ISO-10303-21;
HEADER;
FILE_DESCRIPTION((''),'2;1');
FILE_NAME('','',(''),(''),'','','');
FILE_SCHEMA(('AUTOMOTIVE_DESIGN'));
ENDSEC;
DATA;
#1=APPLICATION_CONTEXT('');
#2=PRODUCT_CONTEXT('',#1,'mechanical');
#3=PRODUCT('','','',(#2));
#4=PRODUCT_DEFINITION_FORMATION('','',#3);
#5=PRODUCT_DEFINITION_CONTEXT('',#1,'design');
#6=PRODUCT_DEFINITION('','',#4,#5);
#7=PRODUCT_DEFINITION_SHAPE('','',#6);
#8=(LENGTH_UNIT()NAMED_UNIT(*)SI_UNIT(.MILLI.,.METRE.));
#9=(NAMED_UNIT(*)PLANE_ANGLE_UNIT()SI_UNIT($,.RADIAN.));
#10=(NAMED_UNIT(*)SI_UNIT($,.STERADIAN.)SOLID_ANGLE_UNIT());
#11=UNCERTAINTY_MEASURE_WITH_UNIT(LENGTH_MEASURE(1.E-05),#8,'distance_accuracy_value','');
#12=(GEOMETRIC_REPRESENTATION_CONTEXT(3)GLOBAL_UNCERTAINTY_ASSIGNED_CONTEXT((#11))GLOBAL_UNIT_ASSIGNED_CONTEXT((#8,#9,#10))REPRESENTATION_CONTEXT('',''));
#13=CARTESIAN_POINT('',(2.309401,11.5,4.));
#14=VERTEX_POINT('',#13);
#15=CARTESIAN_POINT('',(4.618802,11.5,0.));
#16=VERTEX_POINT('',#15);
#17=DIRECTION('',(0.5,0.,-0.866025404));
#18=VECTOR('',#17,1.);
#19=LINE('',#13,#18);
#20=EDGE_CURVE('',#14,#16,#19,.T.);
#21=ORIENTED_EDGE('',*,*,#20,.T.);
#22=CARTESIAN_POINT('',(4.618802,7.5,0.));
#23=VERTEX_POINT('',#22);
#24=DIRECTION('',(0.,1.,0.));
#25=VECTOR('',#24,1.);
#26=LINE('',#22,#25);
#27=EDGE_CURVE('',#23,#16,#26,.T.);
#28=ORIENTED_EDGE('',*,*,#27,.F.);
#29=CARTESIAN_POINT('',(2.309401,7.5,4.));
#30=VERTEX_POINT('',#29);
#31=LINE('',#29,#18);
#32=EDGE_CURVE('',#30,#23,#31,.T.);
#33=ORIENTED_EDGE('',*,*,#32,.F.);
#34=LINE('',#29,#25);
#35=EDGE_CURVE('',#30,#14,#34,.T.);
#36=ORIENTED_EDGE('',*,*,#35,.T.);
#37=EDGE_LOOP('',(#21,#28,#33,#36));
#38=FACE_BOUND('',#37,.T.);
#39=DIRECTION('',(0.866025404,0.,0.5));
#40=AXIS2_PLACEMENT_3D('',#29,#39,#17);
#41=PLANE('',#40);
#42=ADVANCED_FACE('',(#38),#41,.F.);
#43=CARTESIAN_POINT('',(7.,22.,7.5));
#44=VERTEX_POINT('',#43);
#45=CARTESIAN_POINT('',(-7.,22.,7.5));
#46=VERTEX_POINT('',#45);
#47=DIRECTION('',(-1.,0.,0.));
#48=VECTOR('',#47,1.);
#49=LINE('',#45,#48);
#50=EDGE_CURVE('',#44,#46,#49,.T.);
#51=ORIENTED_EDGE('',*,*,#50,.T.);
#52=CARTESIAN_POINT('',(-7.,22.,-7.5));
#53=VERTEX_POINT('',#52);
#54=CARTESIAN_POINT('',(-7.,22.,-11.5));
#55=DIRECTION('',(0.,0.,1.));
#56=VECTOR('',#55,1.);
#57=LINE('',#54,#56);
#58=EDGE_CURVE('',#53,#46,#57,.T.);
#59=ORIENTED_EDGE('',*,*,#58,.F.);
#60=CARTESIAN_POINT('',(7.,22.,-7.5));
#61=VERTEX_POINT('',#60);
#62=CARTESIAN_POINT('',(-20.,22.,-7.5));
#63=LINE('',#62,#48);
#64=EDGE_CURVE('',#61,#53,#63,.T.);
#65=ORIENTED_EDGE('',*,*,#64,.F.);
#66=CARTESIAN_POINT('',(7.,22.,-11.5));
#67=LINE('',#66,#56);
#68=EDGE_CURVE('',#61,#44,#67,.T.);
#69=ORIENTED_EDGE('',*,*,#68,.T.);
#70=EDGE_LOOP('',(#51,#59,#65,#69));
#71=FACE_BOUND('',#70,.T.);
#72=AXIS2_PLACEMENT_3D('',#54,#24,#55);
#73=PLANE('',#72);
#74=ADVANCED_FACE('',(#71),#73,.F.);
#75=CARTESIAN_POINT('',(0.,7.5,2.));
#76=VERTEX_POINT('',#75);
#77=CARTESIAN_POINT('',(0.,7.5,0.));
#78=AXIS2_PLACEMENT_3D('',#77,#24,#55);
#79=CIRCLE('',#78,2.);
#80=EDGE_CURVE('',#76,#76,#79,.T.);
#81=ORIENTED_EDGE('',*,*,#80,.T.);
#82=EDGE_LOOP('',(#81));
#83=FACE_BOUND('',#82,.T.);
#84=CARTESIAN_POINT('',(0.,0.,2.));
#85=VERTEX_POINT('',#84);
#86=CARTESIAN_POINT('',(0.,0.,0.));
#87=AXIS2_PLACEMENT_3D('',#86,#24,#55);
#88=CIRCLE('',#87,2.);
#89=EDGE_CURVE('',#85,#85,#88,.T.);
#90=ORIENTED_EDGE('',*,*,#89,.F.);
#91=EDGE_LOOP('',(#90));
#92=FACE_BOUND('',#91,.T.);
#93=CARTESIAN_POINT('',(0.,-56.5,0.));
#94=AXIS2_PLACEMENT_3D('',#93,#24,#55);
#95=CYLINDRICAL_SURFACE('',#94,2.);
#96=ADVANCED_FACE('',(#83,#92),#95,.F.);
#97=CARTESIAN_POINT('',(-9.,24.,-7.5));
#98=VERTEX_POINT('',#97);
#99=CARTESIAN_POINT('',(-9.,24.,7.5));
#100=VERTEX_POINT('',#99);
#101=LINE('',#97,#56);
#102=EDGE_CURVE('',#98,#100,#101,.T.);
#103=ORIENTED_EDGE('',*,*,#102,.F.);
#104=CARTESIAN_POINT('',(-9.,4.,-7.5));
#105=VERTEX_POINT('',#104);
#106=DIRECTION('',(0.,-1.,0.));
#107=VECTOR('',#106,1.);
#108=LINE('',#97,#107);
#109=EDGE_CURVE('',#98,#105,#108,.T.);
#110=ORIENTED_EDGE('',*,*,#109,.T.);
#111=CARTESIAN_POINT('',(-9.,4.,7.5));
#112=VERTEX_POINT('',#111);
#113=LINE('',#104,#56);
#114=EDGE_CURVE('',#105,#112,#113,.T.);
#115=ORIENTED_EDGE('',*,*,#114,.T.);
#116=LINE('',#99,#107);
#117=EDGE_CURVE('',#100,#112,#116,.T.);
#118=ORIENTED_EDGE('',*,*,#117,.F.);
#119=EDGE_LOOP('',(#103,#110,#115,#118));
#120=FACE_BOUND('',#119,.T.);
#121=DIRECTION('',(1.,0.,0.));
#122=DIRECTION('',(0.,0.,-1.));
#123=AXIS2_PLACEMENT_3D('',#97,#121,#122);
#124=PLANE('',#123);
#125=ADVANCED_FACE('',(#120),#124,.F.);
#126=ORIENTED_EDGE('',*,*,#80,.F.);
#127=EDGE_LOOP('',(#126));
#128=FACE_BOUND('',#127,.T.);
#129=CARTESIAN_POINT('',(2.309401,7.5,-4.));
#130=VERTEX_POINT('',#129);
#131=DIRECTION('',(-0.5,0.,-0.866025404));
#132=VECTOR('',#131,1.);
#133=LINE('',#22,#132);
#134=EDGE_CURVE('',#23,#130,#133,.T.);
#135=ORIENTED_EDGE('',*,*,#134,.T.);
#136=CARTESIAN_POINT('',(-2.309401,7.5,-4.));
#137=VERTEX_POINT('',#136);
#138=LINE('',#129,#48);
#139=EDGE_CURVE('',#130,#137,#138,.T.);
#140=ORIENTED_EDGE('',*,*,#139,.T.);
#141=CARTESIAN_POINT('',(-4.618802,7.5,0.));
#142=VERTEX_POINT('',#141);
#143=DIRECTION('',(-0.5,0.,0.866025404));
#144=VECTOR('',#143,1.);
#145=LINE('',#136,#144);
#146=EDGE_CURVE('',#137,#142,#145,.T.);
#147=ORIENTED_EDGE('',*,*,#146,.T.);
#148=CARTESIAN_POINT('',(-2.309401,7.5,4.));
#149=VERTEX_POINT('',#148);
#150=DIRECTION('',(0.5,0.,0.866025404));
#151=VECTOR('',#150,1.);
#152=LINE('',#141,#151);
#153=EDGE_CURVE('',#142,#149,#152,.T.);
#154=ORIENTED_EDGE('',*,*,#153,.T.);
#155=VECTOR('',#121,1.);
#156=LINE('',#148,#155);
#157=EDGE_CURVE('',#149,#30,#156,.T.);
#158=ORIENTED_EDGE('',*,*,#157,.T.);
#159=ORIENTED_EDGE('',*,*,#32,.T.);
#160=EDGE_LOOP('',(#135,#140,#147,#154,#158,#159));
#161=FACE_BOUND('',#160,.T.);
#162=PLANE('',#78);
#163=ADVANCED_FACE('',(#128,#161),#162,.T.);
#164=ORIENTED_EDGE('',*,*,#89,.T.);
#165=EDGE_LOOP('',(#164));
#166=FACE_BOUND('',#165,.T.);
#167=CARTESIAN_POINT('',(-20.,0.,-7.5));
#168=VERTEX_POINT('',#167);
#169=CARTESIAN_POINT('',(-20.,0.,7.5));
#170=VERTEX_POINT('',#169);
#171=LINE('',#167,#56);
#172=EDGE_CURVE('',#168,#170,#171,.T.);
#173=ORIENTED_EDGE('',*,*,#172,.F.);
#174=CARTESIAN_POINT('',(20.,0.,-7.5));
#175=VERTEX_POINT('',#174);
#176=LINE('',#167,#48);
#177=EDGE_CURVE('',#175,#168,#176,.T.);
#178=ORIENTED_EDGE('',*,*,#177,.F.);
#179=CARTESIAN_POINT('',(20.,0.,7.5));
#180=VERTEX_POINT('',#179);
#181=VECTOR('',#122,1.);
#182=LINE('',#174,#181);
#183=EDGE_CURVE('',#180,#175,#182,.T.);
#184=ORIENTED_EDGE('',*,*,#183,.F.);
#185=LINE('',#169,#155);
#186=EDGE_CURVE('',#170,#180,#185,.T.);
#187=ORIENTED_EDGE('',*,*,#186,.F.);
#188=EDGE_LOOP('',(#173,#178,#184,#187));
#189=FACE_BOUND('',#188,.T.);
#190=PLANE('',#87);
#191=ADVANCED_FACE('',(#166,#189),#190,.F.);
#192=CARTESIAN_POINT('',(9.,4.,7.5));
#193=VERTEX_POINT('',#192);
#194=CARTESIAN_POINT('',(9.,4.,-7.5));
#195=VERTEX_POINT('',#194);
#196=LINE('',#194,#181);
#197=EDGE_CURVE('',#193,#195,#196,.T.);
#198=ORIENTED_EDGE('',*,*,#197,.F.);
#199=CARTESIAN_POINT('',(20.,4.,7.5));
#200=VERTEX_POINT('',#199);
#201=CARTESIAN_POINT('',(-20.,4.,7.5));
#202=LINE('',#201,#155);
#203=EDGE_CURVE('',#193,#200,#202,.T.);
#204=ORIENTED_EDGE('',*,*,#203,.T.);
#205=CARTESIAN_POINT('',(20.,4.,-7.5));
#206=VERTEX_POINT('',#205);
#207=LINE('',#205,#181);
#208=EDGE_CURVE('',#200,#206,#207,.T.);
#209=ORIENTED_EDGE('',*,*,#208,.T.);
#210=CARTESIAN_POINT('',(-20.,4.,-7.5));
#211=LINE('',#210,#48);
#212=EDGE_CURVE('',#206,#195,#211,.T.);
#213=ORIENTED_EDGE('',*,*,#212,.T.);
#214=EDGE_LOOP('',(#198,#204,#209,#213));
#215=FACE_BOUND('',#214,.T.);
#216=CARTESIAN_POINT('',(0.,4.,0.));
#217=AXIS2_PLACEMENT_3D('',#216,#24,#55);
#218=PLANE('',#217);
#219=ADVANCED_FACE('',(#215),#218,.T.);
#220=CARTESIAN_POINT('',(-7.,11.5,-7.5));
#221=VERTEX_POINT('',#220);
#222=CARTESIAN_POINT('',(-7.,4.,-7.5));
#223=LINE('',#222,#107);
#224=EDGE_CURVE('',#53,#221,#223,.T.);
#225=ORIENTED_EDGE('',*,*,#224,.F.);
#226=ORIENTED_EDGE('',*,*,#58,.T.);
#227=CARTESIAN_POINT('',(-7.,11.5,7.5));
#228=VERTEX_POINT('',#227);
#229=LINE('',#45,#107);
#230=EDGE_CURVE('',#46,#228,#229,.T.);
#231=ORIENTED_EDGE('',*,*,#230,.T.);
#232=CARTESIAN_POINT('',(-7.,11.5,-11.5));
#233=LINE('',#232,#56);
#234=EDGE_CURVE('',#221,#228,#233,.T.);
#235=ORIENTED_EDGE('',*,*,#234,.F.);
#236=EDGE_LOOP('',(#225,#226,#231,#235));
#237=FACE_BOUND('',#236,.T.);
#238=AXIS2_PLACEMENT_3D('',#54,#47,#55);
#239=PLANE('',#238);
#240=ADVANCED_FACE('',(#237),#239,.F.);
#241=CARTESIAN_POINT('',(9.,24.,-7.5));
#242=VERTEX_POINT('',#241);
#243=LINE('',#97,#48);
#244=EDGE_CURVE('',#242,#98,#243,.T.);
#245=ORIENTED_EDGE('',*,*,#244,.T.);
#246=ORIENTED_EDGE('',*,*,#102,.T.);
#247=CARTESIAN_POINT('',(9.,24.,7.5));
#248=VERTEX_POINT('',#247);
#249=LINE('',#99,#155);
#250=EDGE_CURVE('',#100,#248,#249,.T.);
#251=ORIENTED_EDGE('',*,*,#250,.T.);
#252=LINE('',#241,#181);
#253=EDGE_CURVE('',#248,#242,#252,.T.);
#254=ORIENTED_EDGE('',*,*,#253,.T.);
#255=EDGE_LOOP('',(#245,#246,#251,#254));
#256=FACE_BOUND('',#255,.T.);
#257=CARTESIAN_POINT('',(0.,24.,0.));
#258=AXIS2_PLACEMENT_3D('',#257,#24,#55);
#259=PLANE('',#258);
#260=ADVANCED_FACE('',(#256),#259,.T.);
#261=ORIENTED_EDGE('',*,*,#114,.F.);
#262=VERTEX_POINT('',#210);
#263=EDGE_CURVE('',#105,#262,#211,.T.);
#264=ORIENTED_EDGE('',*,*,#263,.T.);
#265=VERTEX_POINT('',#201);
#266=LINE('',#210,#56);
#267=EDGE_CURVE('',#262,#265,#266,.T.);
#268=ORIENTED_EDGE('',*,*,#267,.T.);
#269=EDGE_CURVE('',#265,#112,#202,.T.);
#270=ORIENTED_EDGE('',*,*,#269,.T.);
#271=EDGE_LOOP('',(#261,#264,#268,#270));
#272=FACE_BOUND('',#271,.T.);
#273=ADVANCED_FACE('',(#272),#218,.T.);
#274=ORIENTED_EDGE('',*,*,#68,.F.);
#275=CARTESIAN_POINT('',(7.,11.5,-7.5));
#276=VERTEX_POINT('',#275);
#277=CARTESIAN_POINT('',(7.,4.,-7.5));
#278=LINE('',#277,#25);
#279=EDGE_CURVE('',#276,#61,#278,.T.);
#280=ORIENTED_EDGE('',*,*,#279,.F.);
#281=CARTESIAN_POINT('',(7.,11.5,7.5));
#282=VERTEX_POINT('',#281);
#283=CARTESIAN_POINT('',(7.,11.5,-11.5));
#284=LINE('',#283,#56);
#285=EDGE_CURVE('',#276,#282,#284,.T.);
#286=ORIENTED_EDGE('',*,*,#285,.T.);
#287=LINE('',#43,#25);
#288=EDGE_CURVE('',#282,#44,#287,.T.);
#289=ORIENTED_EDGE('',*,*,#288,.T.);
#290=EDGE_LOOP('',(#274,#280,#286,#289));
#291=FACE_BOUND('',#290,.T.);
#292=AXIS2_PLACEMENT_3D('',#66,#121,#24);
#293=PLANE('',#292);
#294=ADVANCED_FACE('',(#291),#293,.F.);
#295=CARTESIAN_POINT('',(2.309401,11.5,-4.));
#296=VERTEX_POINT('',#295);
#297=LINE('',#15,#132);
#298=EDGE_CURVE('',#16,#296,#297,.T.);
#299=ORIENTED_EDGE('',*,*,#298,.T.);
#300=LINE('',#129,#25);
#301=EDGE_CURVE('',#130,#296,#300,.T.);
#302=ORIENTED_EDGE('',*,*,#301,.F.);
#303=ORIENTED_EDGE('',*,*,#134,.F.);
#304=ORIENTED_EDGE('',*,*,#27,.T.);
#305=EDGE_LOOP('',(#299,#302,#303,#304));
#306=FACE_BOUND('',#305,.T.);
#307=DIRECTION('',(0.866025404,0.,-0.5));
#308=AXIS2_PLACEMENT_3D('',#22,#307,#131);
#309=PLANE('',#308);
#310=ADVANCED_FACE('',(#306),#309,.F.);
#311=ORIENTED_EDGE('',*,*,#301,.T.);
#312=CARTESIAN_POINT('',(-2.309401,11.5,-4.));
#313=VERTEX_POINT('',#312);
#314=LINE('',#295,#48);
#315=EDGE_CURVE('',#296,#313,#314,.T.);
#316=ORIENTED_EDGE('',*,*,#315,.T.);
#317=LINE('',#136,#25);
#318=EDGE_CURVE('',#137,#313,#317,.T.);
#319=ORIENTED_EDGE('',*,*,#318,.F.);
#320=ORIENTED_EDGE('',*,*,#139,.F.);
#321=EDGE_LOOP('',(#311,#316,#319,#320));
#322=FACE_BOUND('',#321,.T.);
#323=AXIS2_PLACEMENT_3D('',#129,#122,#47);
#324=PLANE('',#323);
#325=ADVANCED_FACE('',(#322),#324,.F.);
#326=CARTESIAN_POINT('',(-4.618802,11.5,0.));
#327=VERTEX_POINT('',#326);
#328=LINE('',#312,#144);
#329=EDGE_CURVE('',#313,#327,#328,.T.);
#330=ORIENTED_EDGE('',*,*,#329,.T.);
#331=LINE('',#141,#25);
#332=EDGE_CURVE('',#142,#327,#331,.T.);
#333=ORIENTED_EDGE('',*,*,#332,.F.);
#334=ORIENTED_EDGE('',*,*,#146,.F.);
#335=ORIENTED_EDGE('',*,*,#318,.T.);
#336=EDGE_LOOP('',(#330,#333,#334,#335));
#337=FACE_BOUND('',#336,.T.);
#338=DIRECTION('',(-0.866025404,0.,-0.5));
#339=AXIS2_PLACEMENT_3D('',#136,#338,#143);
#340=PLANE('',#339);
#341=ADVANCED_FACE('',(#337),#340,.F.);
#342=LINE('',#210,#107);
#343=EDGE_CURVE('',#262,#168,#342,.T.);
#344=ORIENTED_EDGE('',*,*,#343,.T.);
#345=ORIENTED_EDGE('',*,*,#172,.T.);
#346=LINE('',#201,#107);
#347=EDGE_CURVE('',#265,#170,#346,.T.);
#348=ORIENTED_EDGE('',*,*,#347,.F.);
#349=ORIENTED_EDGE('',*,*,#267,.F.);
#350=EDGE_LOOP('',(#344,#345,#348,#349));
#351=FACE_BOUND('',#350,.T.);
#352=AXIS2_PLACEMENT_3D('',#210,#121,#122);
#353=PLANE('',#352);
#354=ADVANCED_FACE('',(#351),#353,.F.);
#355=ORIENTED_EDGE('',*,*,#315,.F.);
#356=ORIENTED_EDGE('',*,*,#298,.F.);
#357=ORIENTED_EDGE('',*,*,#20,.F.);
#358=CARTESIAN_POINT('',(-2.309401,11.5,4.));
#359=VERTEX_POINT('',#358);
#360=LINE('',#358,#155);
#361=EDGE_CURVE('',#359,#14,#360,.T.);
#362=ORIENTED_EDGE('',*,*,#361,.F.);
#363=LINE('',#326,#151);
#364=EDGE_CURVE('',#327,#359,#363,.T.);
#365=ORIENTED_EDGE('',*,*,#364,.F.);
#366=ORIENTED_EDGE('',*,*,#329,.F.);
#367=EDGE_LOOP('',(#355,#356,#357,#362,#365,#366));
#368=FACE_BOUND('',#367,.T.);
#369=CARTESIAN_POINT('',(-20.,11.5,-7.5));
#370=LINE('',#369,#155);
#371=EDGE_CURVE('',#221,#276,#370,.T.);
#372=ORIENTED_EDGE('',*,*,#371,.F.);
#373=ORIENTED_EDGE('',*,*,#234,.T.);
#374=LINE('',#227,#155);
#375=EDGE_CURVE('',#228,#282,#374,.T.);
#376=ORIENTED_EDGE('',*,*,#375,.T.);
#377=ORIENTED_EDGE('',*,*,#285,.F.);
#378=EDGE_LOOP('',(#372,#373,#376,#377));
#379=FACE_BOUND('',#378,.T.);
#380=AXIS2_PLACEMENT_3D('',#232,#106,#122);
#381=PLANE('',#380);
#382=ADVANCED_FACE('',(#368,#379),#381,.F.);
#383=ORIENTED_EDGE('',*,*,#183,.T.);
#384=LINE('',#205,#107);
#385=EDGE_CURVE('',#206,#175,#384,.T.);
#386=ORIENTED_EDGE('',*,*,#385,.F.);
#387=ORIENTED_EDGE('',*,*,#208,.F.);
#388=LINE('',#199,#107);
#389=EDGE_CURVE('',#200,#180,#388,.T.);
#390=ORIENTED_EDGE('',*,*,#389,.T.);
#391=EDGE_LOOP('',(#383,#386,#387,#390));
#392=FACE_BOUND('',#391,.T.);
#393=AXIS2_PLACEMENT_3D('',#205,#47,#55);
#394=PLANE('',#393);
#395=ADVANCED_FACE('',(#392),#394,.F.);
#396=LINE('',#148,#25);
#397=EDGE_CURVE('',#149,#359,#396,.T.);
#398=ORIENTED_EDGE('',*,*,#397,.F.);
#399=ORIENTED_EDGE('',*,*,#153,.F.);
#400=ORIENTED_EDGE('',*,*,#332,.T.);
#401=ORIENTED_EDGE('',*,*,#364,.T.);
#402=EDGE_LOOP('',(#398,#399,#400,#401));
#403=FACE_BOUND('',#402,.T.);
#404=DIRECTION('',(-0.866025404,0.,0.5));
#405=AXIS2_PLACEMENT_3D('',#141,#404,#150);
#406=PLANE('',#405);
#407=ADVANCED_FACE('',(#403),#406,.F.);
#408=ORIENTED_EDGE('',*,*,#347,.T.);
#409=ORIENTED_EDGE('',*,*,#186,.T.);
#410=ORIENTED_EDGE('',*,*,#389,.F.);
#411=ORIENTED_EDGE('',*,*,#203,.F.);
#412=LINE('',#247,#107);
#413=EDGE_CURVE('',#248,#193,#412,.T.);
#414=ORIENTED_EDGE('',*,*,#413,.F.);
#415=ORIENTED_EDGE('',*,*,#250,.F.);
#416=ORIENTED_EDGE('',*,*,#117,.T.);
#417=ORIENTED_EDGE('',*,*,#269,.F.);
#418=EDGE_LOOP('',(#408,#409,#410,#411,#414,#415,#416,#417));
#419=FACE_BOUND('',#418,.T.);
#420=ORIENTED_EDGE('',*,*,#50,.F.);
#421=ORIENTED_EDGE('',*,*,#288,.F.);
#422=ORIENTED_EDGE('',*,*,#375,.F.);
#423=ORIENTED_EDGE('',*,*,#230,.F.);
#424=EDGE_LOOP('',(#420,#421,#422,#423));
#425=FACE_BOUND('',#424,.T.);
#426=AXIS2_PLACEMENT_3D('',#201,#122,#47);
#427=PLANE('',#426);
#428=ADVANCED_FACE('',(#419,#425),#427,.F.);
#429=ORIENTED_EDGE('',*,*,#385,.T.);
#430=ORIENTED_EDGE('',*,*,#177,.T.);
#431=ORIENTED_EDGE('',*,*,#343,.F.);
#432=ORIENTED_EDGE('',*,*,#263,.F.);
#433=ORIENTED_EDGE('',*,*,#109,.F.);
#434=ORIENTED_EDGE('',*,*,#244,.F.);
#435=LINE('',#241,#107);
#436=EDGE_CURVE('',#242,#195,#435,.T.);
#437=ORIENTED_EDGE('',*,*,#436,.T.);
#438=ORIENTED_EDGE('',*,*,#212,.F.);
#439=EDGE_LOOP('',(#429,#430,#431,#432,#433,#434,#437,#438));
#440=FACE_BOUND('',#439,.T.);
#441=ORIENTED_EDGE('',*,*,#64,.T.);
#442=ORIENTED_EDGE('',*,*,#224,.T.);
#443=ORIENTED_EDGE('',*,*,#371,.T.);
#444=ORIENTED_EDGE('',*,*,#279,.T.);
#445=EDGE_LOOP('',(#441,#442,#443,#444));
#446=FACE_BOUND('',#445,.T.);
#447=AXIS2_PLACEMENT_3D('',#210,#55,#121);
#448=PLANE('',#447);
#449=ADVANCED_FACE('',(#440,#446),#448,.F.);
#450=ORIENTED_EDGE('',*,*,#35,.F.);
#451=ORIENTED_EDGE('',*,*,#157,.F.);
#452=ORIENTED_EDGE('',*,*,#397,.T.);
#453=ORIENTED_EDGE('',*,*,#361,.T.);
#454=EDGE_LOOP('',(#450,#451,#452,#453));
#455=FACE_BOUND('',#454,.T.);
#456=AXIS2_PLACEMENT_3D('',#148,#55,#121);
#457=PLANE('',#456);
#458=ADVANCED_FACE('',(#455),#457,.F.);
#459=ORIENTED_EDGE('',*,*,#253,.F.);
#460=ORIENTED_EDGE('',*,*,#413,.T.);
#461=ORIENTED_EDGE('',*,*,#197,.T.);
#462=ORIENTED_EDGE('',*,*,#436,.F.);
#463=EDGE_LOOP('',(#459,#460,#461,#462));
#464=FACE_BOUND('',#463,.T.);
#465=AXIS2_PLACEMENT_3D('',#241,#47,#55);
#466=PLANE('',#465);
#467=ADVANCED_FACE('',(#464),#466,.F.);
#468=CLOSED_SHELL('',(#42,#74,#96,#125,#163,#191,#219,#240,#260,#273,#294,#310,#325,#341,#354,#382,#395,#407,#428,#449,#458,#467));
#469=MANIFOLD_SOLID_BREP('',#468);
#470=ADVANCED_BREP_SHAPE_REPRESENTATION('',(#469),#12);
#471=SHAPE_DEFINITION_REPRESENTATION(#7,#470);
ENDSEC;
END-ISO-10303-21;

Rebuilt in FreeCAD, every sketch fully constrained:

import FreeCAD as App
import Part
import Sketcher
Q = App.Units.Quantity


def add_polygon(sketch, points):
    """Adds a closed chain of lines whose ends are joined by coincident constraints."""
    first, n = sketch.GeometryCount, len(points)
    for a, b in zip(points, points[1:] + points[:1]):
        sketch.addGeometry(Part.LineSegment(App.Vector(*a, 0), App.Vector(*b, 0)), False)
    for i in range(n):
        sketch.addConstraint(Sketcher.Constraint("Coincident", first + i, 2, first + (i + 1) % n, 1))

doc = App.newDocument("Part")
body = doc.addObject("PartDesign::Body", "Body")

# Sketch on XZ plane
sketch1 = body.newObject("Sketcher::SketchObject", "Sketch")
sketch1.AttachmentSupport = (doc.getObject("XZ_Plane"), [""])
sketch1.MapMode = "FlatFace"
add_polygon(sketch1, [(-20, -8), (-20, 8), (20, 8), (20, -8)])  # lines 0-3
sketch1.addConstraint([
    Sketcher.Constraint("Vertical", 0),
    Sketcher.Constraint("Horizontal", 1),
    Sketcher.Constraint("Vertical", 2),
    Sketcher.Constraint("Horizontal", 3),
    Sketcher.Constraint("Symmetric", 0, 2, 2, 2, -1, 1),
    Sketcher.Constraint("DistanceX", 1, 1, 1, 2, Q("40 mm")),
    Sketcher.Constraint("DistanceY", 0, 1, 0, 2, Q("15 mm")),
])
pad1 = body.newObject("PartDesign::Pad", "Pad")
pad1.Profile = sketch1
pad1.Length = 4
pad1.Reversed = True

# Sketch on XZ plane
sketch2 = body.newObject("Sketcher::SketchObject", "Sketch001")
sketch2.AttachmentSupport = (doc.getObject("XZ_Plane"), [""])
sketch2.MapMode = "FlatFace"
sketch2.AttachmentOffset = App.Placement(App.Vector(0, 0, -4), App.Rotation())
add_polygon(sketch2, [(-9, -8), (-9, 8), (9, 8), (9, -8)])  # lines 0-3
sketch2.addConstraint([
    Sketcher.Constraint("Vertical", 0),
    Sketcher.Constraint("Horizontal", 1),
    Sketcher.Constraint("Vertical", 2),
    Sketcher.Constraint("Horizontal", 3),
    Sketcher.Constraint("Symmetric", 0, 2, 2, 2, -1, 1),
    Sketcher.Constraint("DistanceX", 1, 1, 1, 2, Q("18 mm")),
    Sketcher.Constraint("DistanceY", 0, 1, 0, 2, Q("15 mm")),
])
pad2 = body.newObject("PartDesign::Pad", "Pad001")
pad2.Profile = sketch2
pad2.Length = 20
pad2.Reversed = True

# Sketch on XY plane
sketch3 = body.newObject("Sketcher::SketchObject", "Sketch002")
sketch3.AttachmentSupport = (doc.getObject("XY_Plane"), [""])
sketch3.MapMode = "FlatFace"
sketch3.AttachmentOffset = App.Placement(App.Vector(0, 0, 7.5), App.Rotation())
add_polygon(sketch3, [(-7, 22), (-7, 12), (7, 12), (7, 22)])  # lines 0-3
sketch3.addConstraint([
    Sketcher.Constraint("Vertical", 0),
    Sketcher.Constraint("Horizontal", 1),
    Sketcher.Constraint("Vertical", 2),
    Sketcher.Constraint("Horizontal", 3),
    Sketcher.Constraint("DistanceX", 1, 1, 1, 2, Q("14 mm")),
    Sketcher.Constraint("DistanceY", 0, 2, 0, 1, Q("10.5 mm")),
    Sketcher.Constraint("DistanceX", 0, 2, -1, 1, Q("7 mm")),
    Sketcher.Constraint("DistanceY", -1, 1, 2, 2, Q("22 mm")),
])
pocket1 = body.newObject("PartDesign::Pocket", "Pocket")
pocket1.Profile = sketch3
pocket1.Length = 19

# Sketch on XZ plane
sketch4 = body.newObject("Sketcher::SketchObject", "Sketch003")
sketch4.AttachmentSupport = (doc.getObject("XZ_Plane"), [""])
sketch4.MapMode = "FlatFace"
sketch4.AttachmentOffset = App.Placement(App.Vector(0, 0, -11.5), App.Rotation())
add_polygon(sketch4, [(-2.3, -4), (-4.6, 0), (-2.3, 4), (2.3, 4), (4.6, 0), (2.3, -4)])  # lines 0-5
sketch4.addConstraint([
    Sketcher.Constraint("Horizontal", 2),
    Sketcher.Constraint("Horizontal", 5),
    Sketcher.Constraint("Symmetric", 0, 2, 3, 2, -1, 1),
    Sketcher.Constraint("Symmetric", 1, 2, 4, 2, -1, 1),
    Sketcher.Constraint("PointOnObject", 0, 2, -1),
    Sketcher.Constraint("Parallel", 0, 3),
    Sketcher.Constraint("Vertical", 2, 2, 4, 2),
    Sketcher.Constraint("Angle", 0, Q("120 deg")),
    Sketcher.Constraint("DistanceY", -1, 1, 1, 2, Q("4 mm")),
    Sketcher.Constraint("DistanceX", 1, 2, -1, 1, Q("2.309401 mm")),
])
pocket2 = body.newObject("PartDesign::Pocket", "Pocket001")
pocket2.Profile = sketch4
pocket2.Length = 4
pocket2.Reversed = True

# Sketch on XZ plane
sketch5 = body.newObject("Sketcher::SketchObject", "Sketch004")
sketch5.AttachmentSupport = (doc.getObject("XZ_Plane"), [""])
sketch5.MapMode = "FlatFace"
sketch5.AttachmentOffset = App.Placement(App.Vector(0, 0, -7.5), App.Rotation())
sketch5.addGeometry(Part.Circle(App.Vector(0, 0, 0), App.Vector(0, 0, 1), 2), False)
sketch5.addConstraint([
    Sketcher.Constraint("Coincident", 0, 3, -1, 1),
    Sketcher.Constraint("Diameter", 0, Q("4 mm")),
])
pocket3 = body.newObject("PartDesign::Pocket", "Pocket002")
pocket3.Profile = sketch5
pocket3.Length = 64
pocket3.Reversed = True

doc.recompute()
